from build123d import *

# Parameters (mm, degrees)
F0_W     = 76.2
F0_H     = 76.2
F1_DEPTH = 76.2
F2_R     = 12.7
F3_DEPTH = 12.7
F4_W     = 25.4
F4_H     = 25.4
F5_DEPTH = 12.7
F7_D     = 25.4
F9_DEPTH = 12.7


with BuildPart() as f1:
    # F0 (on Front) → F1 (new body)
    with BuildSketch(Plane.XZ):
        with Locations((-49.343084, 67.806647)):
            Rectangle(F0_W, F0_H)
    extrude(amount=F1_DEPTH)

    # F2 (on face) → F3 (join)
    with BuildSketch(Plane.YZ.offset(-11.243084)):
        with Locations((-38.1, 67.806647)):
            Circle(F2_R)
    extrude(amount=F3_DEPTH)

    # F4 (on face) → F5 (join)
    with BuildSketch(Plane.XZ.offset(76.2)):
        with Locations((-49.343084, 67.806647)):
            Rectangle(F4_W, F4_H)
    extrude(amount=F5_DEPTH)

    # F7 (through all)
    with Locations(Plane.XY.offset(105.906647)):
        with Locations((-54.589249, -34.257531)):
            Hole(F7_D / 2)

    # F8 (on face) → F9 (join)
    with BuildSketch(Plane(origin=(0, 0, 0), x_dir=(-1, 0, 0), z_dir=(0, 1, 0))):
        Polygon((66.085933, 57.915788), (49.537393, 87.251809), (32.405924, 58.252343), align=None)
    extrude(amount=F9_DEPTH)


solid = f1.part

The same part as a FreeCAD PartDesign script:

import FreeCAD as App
import Part
import Sketcher

V = App.Vector
Q = App.Units.Quantity

doc = App.newDocument("Part")
body = doc.addObject("PartDesign::Body", "Body")

# Sketch on XZ plane
sketch1 = doc.addObject("Sketcher::SketchObject", "Sketch")
body.addObject(sketch1)
sketch1.AttachmentSupport = (doc.XZ_Plane, [""])
sketch1.MapMode = "FlatFace"
sketch1.addGeometry([
    Part.LineSegment(V(-87, 106, 0), V(-87, 30, 0)),
    Part.LineSegment(V(-87, 30, 0), V(-11, 30, 0)),
    Part.LineSegment(V(-11, 30, 0), V(-11, 106, 0)),
    Part.LineSegment(V(-11, 106, 0), V(-87, 106, 0)),
], False)
sketch1.addConstraint([
    Sketcher.Constraint("Coincident", 0, 2, 1, 1),
    Sketcher.Constraint("Coincident", 1, 2, 2, 1),
    Sketcher.Constraint("Coincident", 2, 2, 3, 1),
    Sketcher.Constraint("Coincident", 3, 2, 0, 1),
    Sketcher.Constraint("Vertical", 0),
    Sketcher.Constraint("Horizontal", 1),
    Sketcher.Constraint("Vertical", 2),
    Sketcher.Constraint("Horizontal", 3),
    Sketcher.Constraint("Equal", 3, 0),
    Sketcher.Constraint("DistanceX", 1, 1, 1, 2, Q("3 in")),
    Sketcher.Constraint("DistanceX", 0, 2, -1, 1, Q("87.443084 mm")),
    Sketcher.Constraint("DistanceY", -1, 1, 0, 2, Q("29.706647 mm")),
])
pad1 = doc.addObject("PartDesign::Pad", "Pad")
body.addObject(pad1)
pad1.Profile = sketch1
pad1.Length = Q("3 in")

# Sketch on YZ plane
sketch2 = doc.addObject("Sketcher::SketchObject", "Sketch001")
body.addObject(sketch2)
sketch2.AttachmentSupport = (doc.YZ_Plane, [""])
sketch2.MapMode = "FlatFace"
sketch2.AttachmentOffset = App.Placement(V(0, 0, -11.243084), App.Rotation())
sketch2.addGeometry(Part.Circle(V(-38, 68, 0), V(0, 0, 1), 13), False)
sketch2.addConstraint([
    Sketcher.Constraint("Diameter", 0, Q("1 in")),
    Sketcher.Constraint("DistanceX", 0, 3, -1, 1, Q("1.5 in")),
    Sketcher.Constraint("DistanceY", -1, 1, 0, 3, Q("67.806647 mm")),
])
pad2 = doc.addObject("PartDesign::Pad", "Pad001")
body.addObject(pad2)
pad2.Profile = sketch2
pad2.Length = Q("0.5 in")

# Sketch on XZ plane
sketch3 = doc.addObject("Sketcher::SketchObject", "Sketch002")
body.addObject(sketch3)
sketch3.AttachmentSupport = (doc.XZ_Plane, [""])
sketch3.MapMode = "FlatFace"
sketch3.AttachmentOffset = App.Placement(V(0, 0, 3 * 25.4), App.Rotation())
sketch3.addGeometry([
    Part.LineSegment(V(-62, 81, 0), V(-62, 55, 0)),
    Part.LineSegment(V(-62, 55, 0), V(-37, 55, 0)),
    Part.LineSegment(V(-37, 55, 0), V(-37, 81, 0)),
    Part.LineSegment(V(-37, 81, 0), V(-62, 81, 0)),
], False)
sketch3.addConstraint([
    Sketcher.Constraint("Coincident", 0, 2, 1, 1),
    Sketcher.Constraint("Coincident", 1, 2, 2, 1),
    Sketcher.Constraint("Coincident", 2, 2, 3, 1),
    Sketcher.Constraint("Coincident", 3, 2, 0, 1),
    Sketcher.Constraint("Vertical", 0),
    Sketcher.Constraint("Horizontal", 1),
    Sketcher.Constraint("Vertical", 2),
    Sketcher.Constraint("Horizontal", 3),
    Sketcher.Constraint("Equal", 3, 0),
    Sketcher.Constraint("DistanceX", 1, 1, 1, 2, Q("1 in")),
    Sketcher.Constraint("DistanceX", 0, 2, -1, 1, Q("62.043084 mm")),
    Sketcher.Constraint("DistanceY", -1, 1, 0, 2, Q("55.106647 mm")),
])
pad3 = doc.addObject("PartDesign::Pad", "Pad002")
body.addObject(pad3)
pad3.Profile = sketch3
pad3.Length = Q("0.5 in")

# Sketch on XY plane
sketch4 = doc.addObject("Sketcher::SketchObject", "Sketch003")
body.addObject(sketch4)
sketch4.AttachmentSupport = (doc.XY_Plane, [""])
sketch4.MapMode = "FlatFace"
sketch4.AttachmentOffset = App.Placement(V(0, 0, 105.906647), App.Rotation())
sketch4.addGeometry(Part.Circle(V(-55, -34, 0), V(0, 0, 1), 13), False)
sketch4.addConstraint([
    Sketcher.Constraint("Diameter", 0, Q("1 in")),
    Sketcher.Constraint("DistanceX", 0, 3, -1, 1, Q("54.589249 mm")),
    Sketcher.Constraint("DistanceY", 0, 3, -1, 1, Q("34.257531 mm")),
])
doc.recompute()
hole = doc.addObject("PartDesign::Hole", "Hole")
body.addObject(hole)
hole.Profile = sketch4
hole.ThreadType = "None"
hole.Diameter = Q("1 in")
hole.DepthType = "ThroughAll"

# Sketch on XZ plane
sketch5 = doc.addObject("Sketcher::SketchObject", "Sketch004")
body.addObject(sketch5)
sketch5.AttachmentSupport = (doc.XZ_Plane, [""])
sketch5.MapMode = "FlatFace"
sketch5.addGeometry([
    Part.LineSegment(V(-66, 58, 0), V(-50, 87, 0)),
    Part.LineSegment(V(-50, 87, 0), V(-32, 58, 0)),
    Part.LineSegment(V(-32, 58, 0), V(-66, 58, 0)),
], False)
sketch5.addConstraint([
    Sketcher.Constraint("Coincident", 0, 2, 1, 1),
    Sketcher.Constraint("Coincident", 1, 2, 2, 1),
    Sketcher.Constraint("Coincident", 2, 2, 0, 1),
    Sketcher.Constraint("Equal", 0, 1),
    Sketcher.Constraint("Equal", 1, 2),
    Sketcher.Constraint("Distance", 0, Q("33.681691 mm")),
    Sketcher.Constraint("DistanceY", -1, 1, 0, 2, Q("87.251809 mm")),
    Sketcher.Constraint("DistanceX", 0, 2, 1, 2, Q("17.131469 mm")),
    Sketcher.Constraint("DistanceX", 0, 2, -1, 1, Q("49.537393 mm")),
])
pad4 = doc.addObject("PartDesign::Pad", "Pad003")
body.addObject(pad4)
pad4.Profile = sketch5
pad4.Length = Q("0.5 in")
pad4.Reversed = True

doc.recompute()
